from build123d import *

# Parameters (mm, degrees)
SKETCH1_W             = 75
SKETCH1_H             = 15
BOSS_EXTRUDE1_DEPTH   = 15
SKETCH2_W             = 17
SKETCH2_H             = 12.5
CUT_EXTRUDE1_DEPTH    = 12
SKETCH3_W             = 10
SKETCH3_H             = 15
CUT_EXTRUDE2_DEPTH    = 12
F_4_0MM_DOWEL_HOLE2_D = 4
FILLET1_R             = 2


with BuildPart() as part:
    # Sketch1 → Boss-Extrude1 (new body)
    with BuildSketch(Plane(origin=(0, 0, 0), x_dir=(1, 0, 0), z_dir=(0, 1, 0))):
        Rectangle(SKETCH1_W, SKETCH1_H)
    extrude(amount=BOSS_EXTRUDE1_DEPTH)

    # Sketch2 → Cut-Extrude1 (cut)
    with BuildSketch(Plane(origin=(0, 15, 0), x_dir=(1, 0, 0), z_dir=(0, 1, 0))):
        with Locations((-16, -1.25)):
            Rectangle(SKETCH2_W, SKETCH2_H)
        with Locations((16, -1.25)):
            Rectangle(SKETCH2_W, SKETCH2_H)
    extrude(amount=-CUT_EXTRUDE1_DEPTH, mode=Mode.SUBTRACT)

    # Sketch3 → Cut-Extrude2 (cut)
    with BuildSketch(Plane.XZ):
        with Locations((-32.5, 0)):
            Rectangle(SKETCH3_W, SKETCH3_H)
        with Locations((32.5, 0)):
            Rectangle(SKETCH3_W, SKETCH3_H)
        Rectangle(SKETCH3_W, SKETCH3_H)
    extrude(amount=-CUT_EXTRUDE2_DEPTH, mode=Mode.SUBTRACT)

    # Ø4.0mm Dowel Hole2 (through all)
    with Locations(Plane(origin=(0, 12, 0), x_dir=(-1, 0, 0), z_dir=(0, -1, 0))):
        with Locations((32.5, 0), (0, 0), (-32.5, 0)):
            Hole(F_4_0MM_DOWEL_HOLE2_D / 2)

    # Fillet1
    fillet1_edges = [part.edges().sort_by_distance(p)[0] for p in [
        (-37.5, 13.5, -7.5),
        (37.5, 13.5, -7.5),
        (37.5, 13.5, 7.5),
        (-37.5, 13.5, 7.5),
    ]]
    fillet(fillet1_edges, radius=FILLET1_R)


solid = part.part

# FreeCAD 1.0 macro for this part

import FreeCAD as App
import Part
import Sketcher
from FreeCAD import Vector


def edges_at(feature, points):
    """Names of the edges that pass closest to the given points."""
    edges = feature.Shape.Edges
    near = lambda p: min(range(len(edges)), key=lambda i: edges[i].distToShape(Part.Vertex(*p))[0])
    return sorted({f"Edge{near(p) + 1}" for p in points})

doc = App.newDocument("Part")
body = doc.addObject("PartDesign::Body", "Body")

sketch1 = body.newObject("Sketcher::SketchObject", "Sketch")
sketch1.AttachmentSupport = (doc.getObject("XZ_Plane"), [""])
sketch1.MapMode = "FlatFace"
sketch1.addGeometry(Part.LineSegment(Vector(-37.5, -7.5, 0), Vector(-37.5, 7.5, 0)), False)
sketch1.addGeometry(Part.LineSegment(Vector(-37.5, 7.5, 0), Vector(37.5, 7.5, 0)), False)
sketch1.addGeometry(Part.LineSegment(Vector(37.5, 7.5, 0), Vector(37.5, -7.5, 0)), False)
sketch1.addGeometry(Part.LineSegment(Vector(37.5, -7.5, 0), Vector(-37.5, -7.5, 0)), False)
sketch1.addConstraint(Sketcher.Constraint("Coincident", 0, 2, 1, 1))
sketch1.addConstraint(Sketcher.Constraint("Coincident", 1, 2, 2, 1))
sketch1.addConstraint(Sketcher.Constraint("Coincident", 2, 2, 3, 1))
sketch1.addConstraint(Sketcher.Constraint("Coincident", 3, 2, 0, 1))
sketch1.addConstraint(Sketcher.Constraint("Vertical", 0))
sketch1.addConstraint(Sketcher.Constraint("Horizontal", 1))
sketch1.addConstraint(Sketcher.Constraint("Vertical", 2))
sketch1.addConstraint(Sketcher.Constraint("Horizontal", 3))
sketch1.addConstraint(Sketcher.Constraint("Symmetric", 0, 2, 2, 2, -1, 1))
sketch1.addConstraint(Sketcher.Constraint("DistanceX", 1, 1, 1, 2, 75.0))
sketch1.addConstraint(Sketcher.Constraint("DistanceY", 0, 1, 0, 2, 15.0))
pad1 = body.newObject("PartDesign::Pad", "Pad")
pad1.Profile = sketch1
pad1.Length = 15
pad1.Reversed = True

sketch2 = body.newObject("Sketcher::SketchObject", "Sketch001")
sketch2.AttachmentSupport = (doc.getObject("XZ_Plane"), [""])
sketch2.MapMode = "FlatFace"
sketch2.AttachmentOffset = App.Placement(Vector(0, 0, -15), App.Rotation())
sketch2.addGeometry(Part.LineSegment(Vector(-24.5, -5, 0), Vector(-24.5, 7.5, 0)), False)
sketch2.addGeometry(Part.LineSegment(Vector(-24.5, 7.5, 0), Vector(-7.5, 7.5, 0)), False)
sketch2.addGeometry(Part.LineSegment(Vector(-7.5, 7.5, 0), Vector(-7.5, -5, 0)), False)
sketch2.addGeometry(Part.LineSegment(Vector(-7.5, -5, 0), Vector(-24.5, -5, 0)), False)
sketch2.addGeometry(Part.LineSegment(Vector(7.5, -5, 0), Vector(7.5, 7.5, 0)), False)
sketch2.addGeometry(Part.LineSegment(Vector(7.5, 7.5, 0), Vector(24.5, 7.5, 0)), False)
sketch2.addGeometry(Part.LineSegment(Vector(24.5, 7.5, 0), Vector(24.5, -5, 0)), False)
sketch2.addGeometry(Part.LineSegment(Vector(24.5, -5, 0), Vector(7.5, -5, 0)), False)
sketch2.addConstraint(Sketcher.Constraint("Coincident", 0, 2, 1, 1))
sketch2.addConstraint(Sketcher.Constraint("Coincident", 1, 2, 2, 1))
sketch2.addConstraint(Sketcher.Constraint("Coincident", 2, 2, 3, 1))
sketch2.addConstraint(Sketcher.Constraint("Coincident", 3, 2, 0, 1))
sketch2.addConstraint(Sketcher.Constraint("Coincident", 4, 2, 5, 1))
sketch2.addConstraint(Sketcher.Constraint("Coincident", 5, 2, 6, 1))
sketch2.addConstraint(Sketcher.Constraint("Coincident", 6, 2, 7, 1))
sketch2.addConstraint(Sketcher.Constraint("Coincident", 7, 2, 4, 1))
sketch2.addConstraint(Sketcher.Constraint("Vertical", 0))
sketch2.addConstraint(Sketcher.Constraint("Horizontal", 1))
sketch2.addConstraint(Sketcher.Constraint("Vertical", 2))
sketch2.addConstraint(Sketcher.Constraint("Horizontal", 3))
sketch2.addConstraint(Sketcher.Constraint("Vertical", 4))
sketch2.addConstraint(Sketcher.Constraint("Horizontal", 5))
sketch2.addConstraint(Sketcher.Constraint("Vertical", 6))
sketch2.addConstraint(Sketcher.Constraint("Horizontal", 7))
sketch2.addConstraint(Sketcher.Constraint("Symmetric", 1, 2, 4, 2, -2))
sketch2.addConstraint(Sketcher.Constraint("Symmetric", 3, 2, 6, 2, -2))
sketch2.addConstraint(Sketcher.Constraint("DistanceX", 1, 1, 1, 2, 17.0))
sketch2.addConstraint(Sketcher.Constraint("DistanceY", 0, 1, 0, 2, 12.5))
sketch2.addConstraint(Sketcher.Constraint("DistanceY", 2, 2, -1, 1, 5.0))
sketch2.addConstraint(Sketcher.Constraint("DistanceX", 1, 2, 4, 2, 15.0))
pocket1 = body.newObject("PartDesign::Pocket", "Pocket")
pocket1.Profile = sketch2
pocket1.Length = 12
pocket1.Reversed = True

sketch3 = body.newObject("Sketcher::SketchObject", "Sketch002")
sketch3.AttachmentSupport = (doc.getObject("XZ_Plane"), [""])
sketch3.MapMode = "FlatFace"
sketch3.addGeometry(Part.LineSegment(Vector(-37.5, 7.5, 0), Vector(-37.5, -7.5, 0)), False)
sketch3.addGeometry(Part.LineSegment(Vector(-37.5, -7.5, 0), Vector(-27.5, -7.5, 0)), False)
sketch3.addGeometry(Part.LineSegment(Vector(-27.5, -7.5, 0), Vector(-27.5, 7.5, 0)), False)
sketch3.addGeometry(Part.LineSegment(Vector(-27.5, 7.5, 0), Vector(-37.5, 7.5, 0)), False)
sketch3.addGeometry(Part.LineSegment(Vector(27.5, 7.5, 0), Vector(27.5, -7.5, 0)), False)
sketch3.addGeometry(Part.LineSegment(Vector(27.5, -7.5, 0), Vector(37.5, -7.5, 0)), False)
sketch3.addGeometry(Part.LineSegment(Vector(37.5, -7.5, 0), Vector(37.5, 7.5, 0)), False)
sketch3.addGeometry(Part.LineSegment(Vector(37.5, 7.5, 0), Vector(27.5, 7.5, 0)), False)
sketch3.addGeometry(Part.LineSegment(Vector(-5, 7.5, 0), Vector(-5, -7.5, 0)), False)
sketch3.addGeometry(Part.LineSegment(Vector(-5, -7.5, 0), Vector(5, -7.5, 0)), False)
sketch3.addGeometry(Part.LineSegment(Vector(5, -7.5, 0), Vector(5, 7.5, 0)), False)
sketch3.addGeometry(Part.LineSegment(Vector(5, 7.5, 0), Vector(-5, 7.5, 0)), False)
sketch3.addConstraint(Sketcher.Constraint("Coincident", 0, 2, 1, 1))
sketch3.addConstraint(Sketcher.Constraint("Coincident", 1, 2, 2, 1))
sketch3.addConstraint(Sketcher.Constraint("Coincident", 2, 2, 3, 1))
sketch3.addConstraint(Sketcher.Constraint("Coincident", 3, 2, 0, 1))
sketch3.addConstraint(Sketcher.Constraint("Coincident", 4, 2, 5, 1))
sketch3.addConstraint(Sketcher.Constraint("Coincident", 5, 2, 6, 1))
sketch3.addConstraint(Sketcher.Constraint("Coincident", 6, 2, 7, 1))
sketch3.addConstraint(Sketcher.Constraint("Coincident", 7, 2, 4, 1))
sketch3.addConstraint(Sketcher.Constraint("Coincident", 8, 2, 9, 1))
sketch3.addConstraint(Sketcher.Constraint("Coincident", 9, 2, 10, 1))
sketch3.addConstraint(Sketcher.Constraint("Coincident", 10, 2, 11, 1))
sketch3.addConstraint(Sketcher.Constraint("Coincident", 11, 2, 8, 1))
sketch3.addConstraint(Sketcher.Constraint("Vertical", 0))
sketch3.addConstraint(Sketcher.Constraint("Horizontal", 1))
sketch3.addConstraint(Sketcher.Constraint("Vertical", 2))
sketch3.addConstraint(Sketcher.Constraint("Horizontal", 3))
sketch3.addConstraint(Sketcher.Constraint("Vertical", 4))
sketch3.addConstraint(Sketcher.Constraint("Horizontal", 5))
sketch3.addConstraint(Sketcher.Constraint("Vertical", 6))
sketch3.addConstraint(Sketcher.Constraint("Horizontal", 7))
sketch3.addConstraint(Sketcher.Constraint("Vertical", 8))
sketch3.addConstraint(Sketcher.Constraint("Horizontal", 9))
sketch3.addConstraint(Sketcher.Constraint("Vertical", 10))
sketch3.addConstraint(Sketcher.Constraint("Horizontal", 11))
sketch3.addConstraint(Sketcher.Constraint("Symmetric", 2, 2, 4, 2, -1, 1))
sketch3.addConstraint(Sketcher.Constraint("Symmetric", 0, 2, 6, 2, -1, 1))
sketch3.addConstraint(Sketcher.Constraint("Symmetric", 8, 2, 10, 2, -1, 1))
sketch3.addConstraint(Sketcher.Constraint("Horizontal", 1, 2, 4, 2))
sketch3.addConstraint(Sketcher.Constraint("Horizontal", 5, 2, 8, 2))
sketch3.addConstraint(Sketcher.Constraint("Equal", 7, 9))
sketch3.addConstraint(Sketcher.Constraint("DistanceX", 1, 1, 1, 2, 10.0))
sketch3.addConstraint(Sketcher.Constraint("DistanceY", 0, 2, 0, 1, 15.0))
sketch3.addConstraint(Sketcher.Constraint("DistanceX", 1, 2, 4, 2, 55.0))
pocket2 = body.newObject("PartDesign::Pocket", "Pocket001")
pocket2.Profile = sketch3
pocket2.Length = 12

sketch4 = body.newObject("Sketcher::SketchObject", "Sketch003")
sketch4.AttachmentSupport = (doc.getObject("XZ_Plane"), [""])
sketch4.MapMode = "FlatFace"
sketch4.AttachmentOffset = App.Placement(Vector(0, 0, -12), App.Rotation())
sketch4.addGeometry(Part.Circle(Vector(-32.5, 0, 0), Vector(0, 0, 1), 2), False)
sketch4.addGeometry(Part.Circle(Vector(0, 0, 0), Vector(0, 0, 1), 2), False)
sketch4.addGeometry(Part.Circle(Vector(32.5, 0, 0), Vector(0, 0, 1), 2), False)
sketch4.addConstraint(Sketcher.Constraint("Coincident", 1, 3, -1, 1))
sketch4.addConstraint(Sketcher.Constraint("Equal", 0, 1))
sketch4.addConstraint(Sketcher.Constraint("Equal", 1, 2))
sketch4.addConstraint(Sketcher.Constraint("Symmetric", 0, 3, 2, 3, -1, 1))
sketch4.addConstraint(Sketcher.Constraint("PointOnObject", 0, 3, -1))
sketch4.addConstraint(Sketcher.Constraint("Diameter", 0, 4.0))
sketch4.addConstraint(Sketcher.Constraint("DistanceX", 0, 3, 2, 3, 65.0))
doc.recompute()
hole = body.newObject("PartDesign::Hole", "Hole")
hole.Profile = sketch4
hole.ThreadType = "None"
hole.Diameter = 4
hole.DepthType = "ThroughAll"
doc.recompute()

fillet = body.newObject("PartDesign::Fillet", "Fillet")
fillet.Base = (hole, edges_at(hole, [
    (-37.5, 13.5, -7.5),
    (37.5, 13.5, -7.5),
    (37.5, 13.5, 7.5),
    (-37.5, 13.5, 7.5),
]))
fillet.Radius = 2

doc.recompute()
